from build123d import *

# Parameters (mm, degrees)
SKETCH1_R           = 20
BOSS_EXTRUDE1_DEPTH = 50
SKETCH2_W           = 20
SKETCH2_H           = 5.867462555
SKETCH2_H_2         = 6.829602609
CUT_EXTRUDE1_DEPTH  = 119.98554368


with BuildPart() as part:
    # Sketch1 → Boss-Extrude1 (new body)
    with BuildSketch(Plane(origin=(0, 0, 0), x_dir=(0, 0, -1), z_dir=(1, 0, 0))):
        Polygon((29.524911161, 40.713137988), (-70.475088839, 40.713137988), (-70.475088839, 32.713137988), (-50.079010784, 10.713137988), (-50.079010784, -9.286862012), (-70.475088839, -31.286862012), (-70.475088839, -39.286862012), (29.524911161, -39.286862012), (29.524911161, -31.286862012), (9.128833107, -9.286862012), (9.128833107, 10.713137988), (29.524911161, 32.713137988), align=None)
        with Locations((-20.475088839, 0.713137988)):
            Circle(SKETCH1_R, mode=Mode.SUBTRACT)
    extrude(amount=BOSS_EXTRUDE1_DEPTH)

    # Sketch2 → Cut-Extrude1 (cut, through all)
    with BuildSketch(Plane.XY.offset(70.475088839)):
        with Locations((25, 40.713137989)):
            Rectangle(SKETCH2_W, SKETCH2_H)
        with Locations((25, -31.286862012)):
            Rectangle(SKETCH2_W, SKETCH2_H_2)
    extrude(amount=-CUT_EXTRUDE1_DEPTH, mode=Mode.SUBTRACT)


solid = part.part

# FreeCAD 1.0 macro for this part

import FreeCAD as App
import Part
import Sketcher

V = App.Vector
Q = App.Units.Quantity

doc = App.newDocument("Part")
body = doc.addObject("PartDesign::Body", "Body")

sketch1 = doc.addObject("Sketcher::SketchObject", "Sketch")
body.addObject(sketch1)
sketch1.AttachmentSupport = (doc.YZ_Plane, [""])
sketch1.MapMode = "FlatFace"
sketch1.addGeometry(Part.LineSegment(V(41, -30, 0), V(41, 70, 0)), False)
sketch1.addGeometry(Part.LineSegment(V(41, 70, 0), V(33, 70, 0)), False)
sketch1.addGeometry(Part.LineSegment(V(33, 70, 0), V(11, 50, 0)), False)
sketch1.addGeometry(Part.LineSegment(V(11, 50, 0), V(-9, 50, 0)), False)
sketch1.addGeometry(Part.LineSegment(V(-9, 50, 0), V(-31, 70, 0)), False)
sketch1.addGeometry(Part.LineSegment(V(-31, 70, 0), V(-39, 70, 0)), False)
sketch1.addGeometry(Part.LineSegment(V(-39, 70, 0), V(-39, -30, 0)), False)
sketch1.addGeometry(Part.LineSegment(V(-39, -30, 0), V(-31, -30, 0)), False)
sketch1.addGeometry(Part.LineSegment(V(-31, -30, 0), V(-9, -9, 0)), False)
sketch1.addGeometry(Part.LineSegment(V(-9, -9, 0), V(11, -9, 0)), False)
sketch1.addGeometry(Part.LineSegment(V(11, -9, 0), V(33, -30, 0)), False)
sketch1.addGeometry(Part.LineSegment(V(33, -30, 0), V(41, -30, 0)), False)
sketch1.addGeometry(Part.Circle(V(1, 20, 0), V(0, 0, 1), 20), False)
sketch1.addConstraint(Sketcher.Constraint("Coincident", 0, 2, 1, 1))
sketch1.addConstraint(Sketcher.Constraint("Coincident", 1, 2, 2, 1))
sketch1.addConstraint(Sketcher.Constraint("Coincident", 2, 2, 3, 1))
sketch1.addConstraint(Sketcher.Constraint("Coincident", 3, 2, 4, 1))
sketch1.addConstraint(Sketcher.Constraint("Coincident", 4, 2, 5, 1))
sketch1.addConstraint(Sketcher.Constraint("Coincident", 5, 2, 6, 1))
sketch1.addConstraint(Sketcher.Constraint("Coincident", 6, 2, 7, 1))
sketch1.addConstraint(Sketcher.Constraint("Coincident", 7, 2, 8, 1))
sketch1.addConstraint(Sketcher.Constraint("Coincident", 8, 2, 9, 1))
sketch1.addConstraint(Sketcher.Constraint("Coincident", 9, 2, 10, 1))
sketch1.addConstraint(Sketcher.Constraint("Coincident", 10, 2, 11, 1))
sketch1.addConstraint(Sketcher.Constraint("Coincident", 11, 2, 0, 1))
sketch1.addConstraint(Sketcher.Constraint("Vertical", 0))
sketch1.addConstraint(Sketcher.Constraint("Horizontal", 1))
sketch1.addConstraint(Sketcher.Constraint("Horizontal", 3))
sketch1.addConstraint(Sketcher.Constraint("Horizontal", 5))
sketch1.addConstraint(Sketcher.Constraint("Vertical", 6))
sketch1.addConstraint(Sketcher.Constraint("Horizontal", 7))
sketch1.addConstraint(Sketcher.Constraint("Horizontal", 9))
sketch1.addConstraint(Sketcher.Constraint("Horizontal", 11))
sketch1.addConstraint(Sketcher.Constraint("Parallel", 2, 8))
sketch1.addConstraint(Sketcher.Constraint("Parallel", 4, 10))
sketch1.addConstraint(Sketcher.Constraint("Horizontal", 1, 2, 4, 2))
sketch1.addConstraint(Sketcher.Constraint("Horizontal", 7, 2, 10, 2))
sketch1.addConstraint(Sketcher.Constraint("Vertical", 4, 2, 7, 2))
sketch1.addConstraint(Sketcher.Constraint("Vertical", 3, 2, 8, 2))
sketch1.addConstraint(Sketcher.Constraint("Vertical", 2, 2, 9, 2))
sketch1.addConstraint(Sketcher.Constraint("Vertical", 1, 2, 10, 2))
sketch1.addConstraint(Sketcher.Constraint("Equal", 1, 5))
sketch1.addConstraint(Sketcher.Constraint("Diameter", 12, Q("40 mm")))
sketch1.addConstraint(Sketcher.Constraint("DistanceX", 1, 2, 1, 1, Q("8 mm")))
sketch1.addConstraint(Sketcher.Constraint("DistanceX", 3, 2, 3, 1, Q("20 mm")))
sketch1.addConstraint(Sketcher.Constraint("DistanceY", 0, 1, 0, 2, Q("100 mm")))
sketch1.addConstraint(Sketcher.Constraint("Distance", 2, Q("30 mm")))
sketch1.addConstraint(Sketcher.Constraint("DistanceX", 12, 3, 0, 2, Q("40 mm")))
sketch1.addConstraint(Sketcher.Constraint("DistanceY", 12, 3, 0, 2, Q("50 mm")))
sketch1.addConstraint(Sketcher.Constraint("DistanceX", 2, 2, 1, 2, Q("22 mm")))
sketch1.addConstraint(Sketcher.Constraint("DistanceY", -1, 1, 12, 3, Q("20.475089 mm")))
sketch1.addConstraint(Sketcher.Constraint("DistanceX", -1, 1, 12, 3, Q("0.713138 mm")))
pad1 = doc.addObject("PartDesign::Pad", "Pad")
body.addObject(pad1)
pad1.Profile = sketch1
pad1.Length = 50

sketch2 = doc.addObject("Sketcher::SketchObject", "Sketch001")
body.addObject(sketch2)
sketch2.AttachmentSupport = (doc.XY_Plane, [""])
sketch2.MapMode = "FlatFace"
sketch2.AttachmentOffset = App.Placement(V(0, 0, 70.475089), App.Rotation())
sketch2.addGeometry(Part.LineSegment(V(15, 44, 0), V(15, 38, 0)), False)
sketch2.addGeometry(Part.LineSegment(V(15, 38, 0), V(35, 38, 0)), False)
sketch2.addGeometry(Part.LineSegment(V(35, 38, 0), V(35, 44, 0)), False)
sketch2.addGeometry(Part.LineSegment(V(35, 44, 0), V(15, 44, 0)), False)
sketch2.addGeometry(Part.LineSegment(V(15, -28, 0), V(15, -35, 0)), False)
sketch2.addGeometry(Part.LineSegment(V(15, -35, 0), V(35, -35, 0)), False)
sketch2.addGeometry(Part.LineSegment(V(35, -35, 0), V(35, -28, 0)), False)
sketch2.addGeometry(Part.LineSegment(V(35, -28, 0), V(15, -28, 0)), False)
sketch2.addConstraint(Sketcher.Constraint("Coincident", 0, 2, 1, 1))
sketch2.addConstraint(Sketcher.Constraint("Coincident", 1, 2, 2, 1))
sketch2.addConstraint(Sketcher.Constraint("Coincident", 2, 2, 3, 1))
sketch2.addConstraint(Sketcher.Constraint("Coincident", 3, 2, 0, 1))
sketch2.addConstraint(Sketcher.Constraint("Coincident", 4, 2, 5, 1))
sketch2.addConstraint(Sketcher.Constraint("Coincident", 5, 2, 6, 1))
sketch2.addConstraint(Sketcher.Constraint("Coincident", 6, 2, 7, 1))
sketch2.addConstraint(Sketcher.Constraint("Coincident", 7, 2, 4, 1))
sketch2.addConstraint(Sketcher.Constraint("Vertical", 0))
sketch2.addConstraint(Sketcher.Constraint("Horizontal", 1))
sketch2.addConstraint(Sketcher.Constraint("Vertical", 2))
sketch2.addConstraint(Sketcher.Constraint("Horizontal", 3))
sketch2.addConstraint(Sketcher.Constraint("Vertical", 4))
sketch2.addConstraint(Sketcher.Constraint("Horizontal", 5))
sketch2.addConstraint(Sketcher.Constraint("Vertical", 6))
sketch2.addConstraint(Sketcher.Constraint("Horizontal", 7))
sketch2.addConstraint(Sketcher.Constraint("Vertical", 3, 2, 4, 2))
sketch2.addConstraint(Sketcher.Constraint("Vertical", 2, 2, 5, 2))
sketch2.addConstraint(Sketcher.Constraint("DistanceX", 1, 1, 1, 2, Q("20 mm")))
sketch2.addConstraint(Sketcher.Constraint("DistanceX", -1, 1, 0, 2, Q("15 mm")))
sketch2.addConstraint(Sketcher.Constraint("DistanceY", 0, 2, 0, 1, Q("5.867463 mm")))
sketch2.addConstraint(Sketcher.Constraint("DistanceY", 4, 2, 4, 1, Q("6.829603 mm")))
sketch2.addConstraint(Sketcher.Constraint("DistanceY", -1, 1, 2, 2, Q("43.646869 mm")))
sketch2.addConstraint(Sketcher.Constraint("DistanceY", 6, 2, -1, 1, Q("27.872061 mm")))
pocket1 = doc.addObject("PartDesign::Pocket", "Pocket")
body.addObject(pocket1)
pocket1.Profile = sketch2
pocket1.Type = "ThroughAll"

doc.recompute()
